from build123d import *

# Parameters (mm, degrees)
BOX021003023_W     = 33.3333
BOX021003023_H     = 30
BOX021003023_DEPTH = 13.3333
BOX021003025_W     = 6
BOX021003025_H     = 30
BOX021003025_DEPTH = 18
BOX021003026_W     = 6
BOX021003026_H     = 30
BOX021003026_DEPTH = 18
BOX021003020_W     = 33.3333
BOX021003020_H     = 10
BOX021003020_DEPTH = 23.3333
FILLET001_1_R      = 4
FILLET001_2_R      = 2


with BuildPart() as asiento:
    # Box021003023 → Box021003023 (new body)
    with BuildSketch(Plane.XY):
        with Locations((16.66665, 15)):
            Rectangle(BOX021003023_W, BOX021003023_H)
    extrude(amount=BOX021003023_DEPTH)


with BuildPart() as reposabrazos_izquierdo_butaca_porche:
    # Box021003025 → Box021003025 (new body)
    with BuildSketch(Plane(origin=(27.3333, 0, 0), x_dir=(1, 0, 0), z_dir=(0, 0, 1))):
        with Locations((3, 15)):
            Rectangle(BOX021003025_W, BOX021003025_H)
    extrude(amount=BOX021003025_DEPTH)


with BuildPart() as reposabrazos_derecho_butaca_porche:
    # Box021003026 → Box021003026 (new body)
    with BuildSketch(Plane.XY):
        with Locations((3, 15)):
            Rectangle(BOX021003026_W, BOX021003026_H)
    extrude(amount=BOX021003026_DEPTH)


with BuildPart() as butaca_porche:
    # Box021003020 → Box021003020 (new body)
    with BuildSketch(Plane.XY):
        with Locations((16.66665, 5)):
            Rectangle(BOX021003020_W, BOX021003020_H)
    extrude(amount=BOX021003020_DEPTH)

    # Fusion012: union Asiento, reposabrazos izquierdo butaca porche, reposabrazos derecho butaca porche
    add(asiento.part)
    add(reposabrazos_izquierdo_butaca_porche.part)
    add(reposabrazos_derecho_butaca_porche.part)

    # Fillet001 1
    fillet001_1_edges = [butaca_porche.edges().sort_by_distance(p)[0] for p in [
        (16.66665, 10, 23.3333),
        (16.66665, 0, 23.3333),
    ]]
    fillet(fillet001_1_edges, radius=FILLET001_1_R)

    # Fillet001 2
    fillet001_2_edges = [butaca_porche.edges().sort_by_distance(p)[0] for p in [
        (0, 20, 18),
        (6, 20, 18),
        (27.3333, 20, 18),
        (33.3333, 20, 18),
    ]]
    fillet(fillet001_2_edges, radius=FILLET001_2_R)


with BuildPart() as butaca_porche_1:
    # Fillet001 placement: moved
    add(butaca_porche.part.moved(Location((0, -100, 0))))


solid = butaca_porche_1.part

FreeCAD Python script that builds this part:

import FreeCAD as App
import Part
import Sketcher
Q = App.Units.Quantity


def edges_at(feature, points):
    """Names of the edges that pass closest to the given points."""
    edges = feature.Shape.Edges
    near = lambda p: min(range(len(edges)), key=lambda i: edges[i].distToShape(Part.Vertex(*p))[0])
    return sorted({f"Edge{near(p) + 1}" for p in points})


def add_polygon(sketch, points):
    """Adds a closed chain of lines whose ends are joined by coincident constraints."""
    first, n = sketch.GeometryCount, len(points)
    for a, b in zip(points, points[1:] + points[:1]):
        sketch.addGeometry(Part.LineSegment(App.Vector(*a, 0), App.Vector(*b, 0)), False)
    for i in range(n):
        sketch.addConstraint(Sketcher.Constraint("Coincident", first + i, 2, first + (i + 1) % n, 1))

doc = App.newDocument("Part")
body = doc.addObject("PartDesign::Body", "Body")

sketch1 = body.newObject("Sketcher::SketchObject", "Sketch")
sketch1.AttachmentSupport = (doc.getObject("XY_Plane"), [""])
sketch1.MapMode = "FlatFace"
add_polygon(sketch1, [(0, 30), (0, 0), (33, 0), (33, 30)])
sketch1.addConstraint([
    Sketcher.Constraint("Vertical", 0),
    Sketcher.Constraint("Horizontal", 1),
    Sketcher.Constraint("Vertical", 2),
    Sketcher.Constraint("Horizontal", 3),
    Sketcher.Constraint("Coincident", 0, 2, -1, 1),
    Sketcher.Constraint("DistanceY", 0, 2, 0, 1, Q("30 mm")),
    Sketcher.Constraint("DistanceX", 1, 1, 1, 2, Q("33.3333 mm")),
])
pad1 = body.newObject("PartDesign::Pad", "Pad")
pad1.Profile = sketch1
pad1.Length = 13.3333
body2 = doc.addObject("PartDesign::Body", "Body001")

sketch2 = body2.newObject("Sketcher::SketchObject", "Sketch001")
sketch2.AttachmentSupport = (doc.getObject("XY_Plane001"), [""])
sketch2.MapMode = "FlatFace"
add_polygon(sketch2, [(27, 30), (27, 0), (33, 0), (33, 30)])
sketch2.addConstraint([
    Sketcher.Constraint("Vertical", 0),
    Sketcher.Constraint("Horizontal", 1),
    Sketcher.Constraint("Vertical", 2),
    Sketcher.Constraint("Horizontal", 3),
    Sketcher.Constraint("PointOnObject", 0, 2, -1),
    Sketcher.Constraint("DistanceX", 1, 1, 1, 2, Q("6 mm")),
    Sketcher.Constraint("DistanceY", 0, 2, 0, 1, Q("30 mm")),
    Sketcher.Constraint("DistanceX", -1, 1, 0, 2, Q("27.3333 mm")),
])
pad2 = body2.newObject("PartDesign::Pad", "Pad001")
pad2.Profile = sketch2
pad2.Length = 18
body3 = doc.addObject("PartDesign::Body", "Body002")

sketch3 = body3.newObject("Sketcher::SketchObject", "Sketch002")
sketch3.AttachmentSupport = (doc.getObject("XY_Plane002"), [""])
sketch3.MapMode = "FlatFace"
add_polygon(sketch3, [(0, 30), (0, 0), (6, 0), (6, 30)])
sketch3.addConstraint([
    Sketcher.Constraint("Vertical", 0),
    Sketcher.Constraint("Horizontal", 1),
    Sketcher.Constraint("Vertical", 2),
    Sketcher.Constraint("Horizontal", 3),
    Sketcher.Constraint("Coincident", 0, 2, -1, 1),
    Sketcher.Constraint("DistanceX", 1, 1, 1, 2, Q("6 mm")),
    Sketcher.Constraint("DistanceY", 0, 2, 0, 1, Q("30 mm")),
])
pad3 = body3.newObject("PartDesign::Pad", "Pad002")
pad3.Profile = sketch3
pad3.Length = 18
body4 = doc.addObject("PartDesign::Body", "Body003")

sketch4 = body4.newObject("Sketcher::SketchObject", "Sketch003")
sketch4.AttachmentSupport = (doc.getObject("XY_Plane003"), [""])
sketch4.MapMode = "FlatFace"
add_polygon(sketch4, [(0, 10), (0, 0), (33, 0), (33, 10)])
sketch4.addConstraint([
    Sketcher.Constraint("Vertical", 0),
    Sketcher.Constraint("Horizontal", 1),
    Sketcher.Constraint("Vertical", 2),
    Sketcher.Constraint("Horizontal", 3),
    Sketcher.Constraint("Coincident", 0, 2, -1, 1),
    Sketcher.Constraint("DistanceY", 0, 2, 0, 1, Q("10 mm")),
    Sketcher.Constraint("DistanceX", 1, 1, 1, 2, Q("33.3333 mm")),
])
pad4 = body4.newObject("PartDesign::Pad", "Pad003")
pad4.Profile = sketch4
pad4.Length = 23.3333
doc.recompute()

boolean = body4.newObject("PartDesign::Boolean", "Boolean")
boolean.Type = "Fuse"
boolean.addObjects([body])
doc.recompute()

boolean2 = body4.newObject("PartDesign::Boolean", "Boolean001")
boolean2.Type = "Fuse"
boolean2.addObjects([body2])
doc.recompute()

boolean3 = body4.newObject("PartDesign::Boolean", "Boolean002")
boolean3.Type = "Fuse"
boolean3.addObjects([body3])
doc.recompute()

fillet = body4.newObject("PartDesign::Fillet", "Fillet")
fillet.Base = (boolean3, edges_at(boolean3, [(16.667, 10, 23.333), (16.667, 0, 23.333)]))
fillet.Radius = 4
doc.recompute()

fillet2 = body4.newObject("PartDesign::Fillet", "Fillet001")
fillet2.Base = (fillet, edges_at(fillet, [
    (0, 20, 18),
    (6, 20, 18),
    (27.333, 20, 18),
    (33.333, 20, 18),
]))
fillet2.Radius = 2
body5 = doc.addObject("PartDesign::Body", "Body004")
doc.recompute()

body4.Placement = App.Placement(App.Vector(0, -100, 0), App.Rotation(App.Vector(0, 0, 1), 0))
boolean4 = body5.newObject("PartDesign::Boolean", "Boolean003")
boolean4.Type = "Fuse"
boolean4.addObjects([body4])

doc.recompute()
